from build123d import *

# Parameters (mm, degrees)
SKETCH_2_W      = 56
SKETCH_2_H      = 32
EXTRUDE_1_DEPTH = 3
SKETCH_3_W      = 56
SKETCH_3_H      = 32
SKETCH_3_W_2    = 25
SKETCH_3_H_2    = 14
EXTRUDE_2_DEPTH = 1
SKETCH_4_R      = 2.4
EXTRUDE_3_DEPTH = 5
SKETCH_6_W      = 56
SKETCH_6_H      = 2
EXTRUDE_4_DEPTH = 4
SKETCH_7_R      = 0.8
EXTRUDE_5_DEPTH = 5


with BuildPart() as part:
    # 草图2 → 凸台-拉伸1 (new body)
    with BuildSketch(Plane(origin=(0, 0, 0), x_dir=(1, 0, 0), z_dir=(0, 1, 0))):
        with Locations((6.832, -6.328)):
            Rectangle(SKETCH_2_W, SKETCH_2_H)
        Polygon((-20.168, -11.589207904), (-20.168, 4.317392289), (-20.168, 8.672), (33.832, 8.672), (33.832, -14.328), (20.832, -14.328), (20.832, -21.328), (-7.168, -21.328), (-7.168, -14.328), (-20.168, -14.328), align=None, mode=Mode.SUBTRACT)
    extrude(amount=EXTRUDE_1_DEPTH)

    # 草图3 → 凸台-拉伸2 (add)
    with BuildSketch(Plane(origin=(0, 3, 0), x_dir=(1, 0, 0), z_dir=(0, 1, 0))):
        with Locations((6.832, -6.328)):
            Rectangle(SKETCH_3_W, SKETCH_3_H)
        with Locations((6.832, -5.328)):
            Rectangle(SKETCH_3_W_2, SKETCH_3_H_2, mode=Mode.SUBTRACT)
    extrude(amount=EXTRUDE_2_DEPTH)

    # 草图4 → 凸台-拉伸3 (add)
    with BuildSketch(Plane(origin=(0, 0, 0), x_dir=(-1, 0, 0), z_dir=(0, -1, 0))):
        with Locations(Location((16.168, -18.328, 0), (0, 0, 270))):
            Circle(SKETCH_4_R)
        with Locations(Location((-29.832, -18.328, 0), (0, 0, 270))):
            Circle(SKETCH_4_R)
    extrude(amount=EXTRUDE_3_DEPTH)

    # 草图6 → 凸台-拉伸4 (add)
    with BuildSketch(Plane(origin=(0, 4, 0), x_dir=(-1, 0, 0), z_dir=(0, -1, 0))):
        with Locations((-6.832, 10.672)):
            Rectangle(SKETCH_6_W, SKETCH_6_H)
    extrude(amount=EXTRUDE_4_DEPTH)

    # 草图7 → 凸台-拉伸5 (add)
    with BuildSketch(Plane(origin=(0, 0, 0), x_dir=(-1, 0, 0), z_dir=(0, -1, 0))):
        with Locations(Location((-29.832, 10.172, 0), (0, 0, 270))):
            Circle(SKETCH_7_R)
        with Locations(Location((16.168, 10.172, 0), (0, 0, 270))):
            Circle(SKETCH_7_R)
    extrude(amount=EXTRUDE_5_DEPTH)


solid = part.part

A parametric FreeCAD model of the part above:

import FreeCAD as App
import Part
import Sketcher


def add_polygon(sketch, points):
    """Adds a closed chain of lines whose ends are joined by coincident constraints."""
    first, n = sketch.GeometryCount, len(points)
    for a, b in zip(points, points[1:] + points[:1]):
        sketch.addGeometry(Part.LineSegment(App.Vector(*a, 0), App.Vector(*b, 0)), False)
    for i in range(n):
        sketch.addConstraint(Sketcher.Constraint("Coincident", first + i, 2, first + (i + 1) % n, 1))

doc = App.newDocument("Part")
params = doc.addObject("Spreadsheet::Sheet", "Params")
for row, (alias, value) in enumerate([
    ("sketch1_width", "56 mm"),
    ("sketch1_width2", "54 mm"),
    ("sketch1_width3", "13 mm"),
    ("sketch1_height", "32 mm"),
    ("sketch1_height2", "23 mm"),
    ("pad1_length", "3 mm"),
    ("sketch2_width", "56 mm"),
    ("sketch2_width2", "25 mm"),
    ("sketch2_height", "32 mm"),
    ("sketch2_height2", "14 mm"),
    ("pad2_length", "1 mm"),
    ("sketch3_diameter", "4.8 mm"),
    ("pad3_length", "5 mm"),
    ("sketch4_width", "56 mm"),
    ("sketch4_height", "2 mm"),
    ("pad4_length", "4 mm"),
    ("sketch5_diameter", "1.6 mm"),
    ("pad5_length", "5 mm"),
], start=1):
    params.set(f"A{row}", alias)
    params.set(f"B{row}", "=" + value)
    params.setAlias(f"B{row}", alias)

body = doc.addObject("PartDesign::Body", "Body")

# Sketch on XZ plane
sketch1 = body.newObject("Sketcher::SketchObject", "Sketch")
sketch1.AttachmentSupport = (doc.getObject("XZ_Plane"), [""])
sketch1.MapMode = "FlatFace"
add_polygon(sketch1, [(-21.168, -9.672), (-21.168, 22.328), (34.832, 22.328), (34.832, -9.672)])  # lines 0-3
add_polygon(sketch1, [(-20.168, 14.328), (-20.168, -8.672), (33.832, -8.672), (33.832, 14.328), (20.832, 14.328), (20.832, 21.328), (-7.168, 21.328), (-7.168, 14.328)])  # lines 4-11
sketch1.addConstraint([
    Sketcher.Constraint("Vertical", 0),
    Sketcher.Constraint("Horizontal", 1),
    Sketcher.Constraint("Vertical", 2),
    Sketcher.Constraint("Horizontal", 3),
    Sketcher.Constraint("Vertical", 4),
    Sketcher.Constraint("Horizontal", 5),
    Sketcher.Constraint("Vertical", 6),
    Sketcher.Constraint("Horizontal", 7),
    Sketcher.Constraint("Vertical", 8),
    Sketcher.Constraint("Horizontal", 9),
    Sketcher.Constraint("Vertical", 10),
    Sketcher.Constraint("Horizontal", 11),
    Sketcher.Constraint("Horizontal", 7, 2, 10, 2),
    Sketcher.Constraint("Equal", 7, 11),
    Sketcher.Constraint("DistanceX", 1, 1, 1, 2, 56.0),
    Sketcher.Constraint("DistanceX", 5, 1, 5, 2, 54.0),
    Sketcher.Constraint("DistanceX", 7, 2, 7, 1, 13.0),
    Sketcher.Constraint("DistanceY", 0, 1, 0, 2, 32.0),
    Sketcher.Constraint("DistanceY", 4, 2, 4, 1, 23.0),
    Sketcher.Constraint("DistanceY", 8, 1, 8, 2, 7.0),
    Sketcher.Constraint("DistanceX", 3, 2, 4, 2, 1.0),
    Sketcher.Constraint("DistanceY", 3, 2, 4, 2, 1.0),
    Sketcher.Constraint("DistanceX", 0, 2, -1, 1, 21.168),
    Sketcher.Constraint("DistanceY", -1, 1, 0, 2, 22.328),
])
sketch1.setExpression("Constraints[26]", "Params.sketch1_width")
sketch1.setExpression("Constraints[27]", "Params.sketch1_width2")
sketch1.setExpression("Constraints[28]", "Params.sketch1_width3")
sketch1.setExpression("Constraints[29]", "Params.sketch1_height")
sketch1.setExpression("Constraints[30]", "Params.sketch1_height2")
pad1 = body.newObject("PartDesign::Pad", "Pad")
pad1.Profile = sketch1
pad1.setExpression("Length", "Params.pad1_length")
pad1.Reversed = True

# Sketch on XZ plane
sketch2 = body.newObject("Sketcher::SketchObject", "Sketch001")
sketch2.AttachmentSupport = (doc.getObject("XZ_Plane"), [""])
sketch2.MapMode = "FlatFace"
sketch2.AttachmentOffset = App.Placement(App.Vector(0, 0, -3), App.Rotation())
add_polygon(sketch2, [(-21.168, -9.672), (-21.168, 22.328), (34.832, 22.328), (34.832, -9.672)])  # lines 0-3
add_polygon(sketch2, [(19.332, 12.328), (-5.668, 12.328), (-5.668, -1.672), (19.332, -1.672)])  # lines 4-7
sketch2.addConstraint([
    Sketcher.Constraint("Vertical", 0),
    Sketcher.Constraint("Horizontal", 1),
    Sketcher.Constraint("Vertical", 2),
    Sketcher.Constraint("Horizontal", 3),
    Sketcher.Constraint("Horizontal", 4),
    Sketcher.Constraint("Vertical", 5),
    Sketcher.Constraint("Horizontal", 6),
    Sketcher.Constraint("Vertical", 7),
    Sketcher.Constraint("DistanceX", 1, 1, 1, 2, 56.0),
    Sketcher.Constraint("DistanceX", 4, 2, 4, 1, 25.0),
    Sketcher.Constraint("DistanceY", 0, 1, 0, 2, 32.0),
    Sketcher.Constraint("DistanceY", 5, 2, 5, 1, 14.0),
    Sketcher.Constraint("DistanceY", 4, 2, 0, 2, 10.0),
    Sketcher.Constraint("DistanceX", 0, 2, 4, 2, 15.5),
    Sketcher.Constraint("DistanceX", 0, 2, -1, 1, 21.168),
    Sketcher.Constraint("DistanceY", -1, 1, 0, 2, 22.328),
])
sketch2.setExpression("Constraints[16]", "Params.sketch2_width")
sketch2.setExpression("Constraints[17]", "Params.sketch2_width2")
sketch2.setExpression("Constraints[18]", "Params.sketch2_height")
sketch2.setExpression("Constraints[19]", "Params.sketch2_height2")
pad2 = body.newObject("PartDesign::Pad", "Pad001")
pad2.Profile = sketch2
pad2.setExpression("Length", "Params.pad2_length")
pad2.Reversed = True

# Sketch on XZ plane
sketch3 = body.newObject("Sketcher::SketchObject", "Sketch002")
sketch3.AttachmentSupport = (doc.getObject("XZ_Plane"), [""])
sketch3.MapMode = "FlatFace"
sketch3.addGeometry([
    Part.Circle(App.Vector(-16.168, 18.328, 0), App.Vector(0, 0, 1), 2.4),
    Part.Circle(App.Vector(29.832, 18.328, 0), App.Vector(0, 0, 1), 2.4),
], False)
sketch3.addConstraint([
    Sketcher.Constraint("Equal", 0, 1),
    Sketcher.Constraint("Horizontal", 0, 3, 1, 3),
    Sketcher.Constraint("Diameter", 0, 4.8),
    Sketcher.Constraint("DistanceX", 0, 3, 1, 3, 46.0),
    Sketcher.Constraint("DistanceX", 0, 3, -1, 1, 16.168),
    Sketcher.Constraint("DistanceY", -1, 1, 0, 3, 18.328),
])
sketch3.setExpression("Constraints[2]", "Params.sketch3_diameter")
pad3 = body.newObject("PartDesign::Pad", "Pad002")
pad3.Profile = sketch3
pad3.setExpression("Length", "Params.pad3_length")

# Sketch on XZ plane
sketch4 = body.newObject("Sketcher::SketchObject", "Sketch003")
sketch4.AttachmentSupport = (doc.getObject("XZ_Plane"), [""])
sketch4.MapMode = "FlatFace"
sketch4.AttachmentOffset = App.Placement(App.Vector(0, 0, -4), App.Rotation())
add_polygon(sketch4, [(34.832, -11.672), (34.832, -9.672), (-21.168, -9.672), (-21.168, -11.672)])  # lines 0-3
sketch4.addConstraint([
    Sketcher.Constraint("Vertical", 0),
    Sketcher.Constraint("Horizontal", 1),
    Sketcher.Constraint("Vertical", 2),
    Sketcher.Constraint("Horizontal", 3),
    Sketcher.Constraint("DistanceX", 1, 2, 1, 1, 56.0),
    Sketcher.Constraint("DistanceY", 0, 1, 0, 2, 2.0),
    Sketcher.Constraint("DistanceX", -1, 1, 0, 2, 34.832),
    Sketcher.Constraint("DistanceY", 0, 2, -1, 1, 9.672),
])
sketch4.setExpression("Constraints[8]", "Params.sketch4_width")
sketch4.setExpression("Constraints[9]", "Params.sketch4_height")
pad4 = body.newObject("PartDesign::Pad", "Pad003")
pad4.Profile = sketch4
pad4.setExpression("Length", "Params.pad4_length")

# Sketch on XZ plane
sketch5 = body.newObject("Sketcher::SketchObject", "Sketch004")
sketch5.AttachmentSupport = (doc.getObject("XZ_Plane"), [""])
sketch5.MapMode = "FlatFace"
sketch5.addGeometry([
    Part.Circle(App.Vector(29.832, -10.172, 0), App.Vector(0, 0, 1), 0.8),
    Part.Circle(App.Vector(-16.168, -10.172, 0), App.Vector(0, 0, 1), 0.8),
], False)
sketch5.addConstraint([
    Sketcher.Constraint("Equal", 0, 1),
    Sketcher.Constraint("Horizontal", 0, 3, 1, 3),
    Sketcher.Constraint("Diameter", 0, 1.6),
    Sketcher.Constraint("DistanceX", 1, 3, 0, 3, 46.0),
    Sketcher.Constraint("DistanceX", -1, 1, 0, 3, 29.832),
    Sketcher.Constraint("DistanceY", 0, 3, -1, 1, 10.172),
])
sketch5.setExpression("Constraints[2]", "Params.sketch5_diameter")
pad5 = body.newObject("PartDesign::Pad", "Pad004")
pad5.Profile = sketch5
pad5.setExpression("Length", "Params.pad5_length")

doc.recompute()
